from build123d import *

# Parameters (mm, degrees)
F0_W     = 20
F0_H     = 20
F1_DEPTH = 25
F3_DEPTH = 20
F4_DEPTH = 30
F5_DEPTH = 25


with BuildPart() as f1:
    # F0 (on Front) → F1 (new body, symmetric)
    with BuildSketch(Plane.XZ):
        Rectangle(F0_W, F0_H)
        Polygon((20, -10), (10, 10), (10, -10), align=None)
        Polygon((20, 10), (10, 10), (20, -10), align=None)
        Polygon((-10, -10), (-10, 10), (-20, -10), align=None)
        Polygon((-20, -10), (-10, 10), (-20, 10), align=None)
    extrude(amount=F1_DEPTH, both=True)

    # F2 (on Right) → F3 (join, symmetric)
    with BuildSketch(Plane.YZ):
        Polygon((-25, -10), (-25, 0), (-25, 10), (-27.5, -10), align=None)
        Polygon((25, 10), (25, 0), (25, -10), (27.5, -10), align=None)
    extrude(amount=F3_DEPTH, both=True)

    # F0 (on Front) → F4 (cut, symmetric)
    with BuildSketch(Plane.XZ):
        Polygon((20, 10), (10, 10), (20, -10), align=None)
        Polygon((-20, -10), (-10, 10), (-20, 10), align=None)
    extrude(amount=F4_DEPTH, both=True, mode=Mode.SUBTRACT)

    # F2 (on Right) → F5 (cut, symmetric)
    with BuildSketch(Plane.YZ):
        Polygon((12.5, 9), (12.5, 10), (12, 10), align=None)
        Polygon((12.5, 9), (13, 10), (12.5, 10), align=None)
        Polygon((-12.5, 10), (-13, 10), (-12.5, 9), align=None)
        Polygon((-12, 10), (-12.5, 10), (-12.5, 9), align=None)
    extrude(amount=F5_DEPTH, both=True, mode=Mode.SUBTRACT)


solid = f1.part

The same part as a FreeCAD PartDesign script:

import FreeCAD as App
import Part
import Sketcher
from FreeCAD import Vector
Q = App.Units.Quantity

doc = App.newDocument("Part")
params = doc.addObject("Spreadsheet::Sheet", "Params")
for row, (alias, value) in enumerate([
    ("sketch1_width", "40 mm"),
    ("sketch1_height", "20 mm"),
    ("pad1_length", "50 mm"),
    ("sketch2_height", "20 mm"),
    ("sketch2_width", "2.5 mm"),
    ("pad2_length", "40 mm"),
    ("sketch3_width", "10 mm"),
    ("sketch3_height", "20 mm"),
    ("pocket1_length", "60 mm"),
    ("sketch4_width", "1 mm"),
    ("pocket2_length", "50 mm"),
], start=1):
    params.set(f"A{row}", alias)
    params.set(f"B{row}", "=" + value)
    params.setAlias(f"B{row}", alias)

body = doc.addObject("PartDesign::Body", "Body")

# Sketch on XZ plane
sketch1 = body.newObject("Sketcher::SketchObject", "Sketch")
sketch1.AttachmentSupport = (doc.getObject("XZ_Plane"), [""])
sketch1.MapMode = "FlatFace"
sketch1.addGeometry(Part.LineSegment(Vector(20, -10, 0), Vector(20, 10, 0)), False)
sketch1.addGeometry(Part.LineSegment(Vector(20, 10, 0), Vector(-20, 10, 0)), False)
sketch1.addGeometry(Part.LineSegment(Vector(-20, 10, 0), Vector(-20, -10, 0)), False)
sketch1.addGeometry(Part.LineSegment(Vector(-20, -10, 0), Vector(20, -10, 0)), False)
sketch1.addConstraint(Sketcher.Constraint("Coincident", 0, 2, 1, 1))
sketch1.addConstraint(Sketcher.Constraint("Coincident", 1, 2, 2, 1))
sketch1.addConstraint(Sketcher.Constraint("Coincident", 2, 2, 3, 1))
sketch1.addConstraint(Sketcher.Constraint("Coincident", 3, 2, 0, 1))
sketch1.addConstraint(Sketcher.Constraint("Vertical", 0))
sketch1.addConstraint(Sketcher.Constraint("Horizontal", 1))
sketch1.addConstraint(Sketcher.Constraint("Vertical", 2))
sketch1.addConstraint(Sketcher.Constraint("Horizontal", 3))
sketch1.addConstraint(Sketcher.Constraint("Symmetric", 0, 2, 2, 2, -1, 1))
sketch1.addConstraint(Sketcher.Constraint("DistanceX", 1, 2, 1, 1, Q("40 mm")))
sketch1.addConstraint(Sketcher.Constraint("DistanceY", 0, 1, 0, 2, Q("20 mm")))
sketch1.setExpression("Constraints[9]", "Params.sketch1_width")
sketch1.setExpression("Constraints[10]", "Params.sketch1_height")
pad1 = body.newObject("PartDesign::Pad", "Pad")
pad1.Profile = sketch1
pad1.setExpression("Length", "Params.pad1_length")
pad1.Midplane = True

# Sketch on YZ plane
sketch2 = body.newObject("Sketcher::SketchObject", "Sketch001")
sketch2.AttachmentSupport = (doc.getObject("YZ_Plane"), [""])
sketch2.MapMode = "FlatFace"
sketch2.addGeometry(Part.LineSegment(Vector(-25, -10, 0), Vector(-25, 10, 0)), False)
sketch2.addGeometry(Part.LineSegment(Vector(-25, 10, 0), Vector(-27.5, -10, 0)), False)
sketch2.addGeometry(Part.LineSegment(Vector(-27.5, -10, 0), Vector(-25, -10, 0)), False)
sketch2.addGeometry(Part.LineSegment(Vector(25, 10, 0), Vector(25, -10, 0)), False)
sketch2.addGeometry(Part.LineSegment(Vector(25, -10, 0), Vector(27.5, -10, 0)), False)
sketch2.addGeometry(Part.LineSegment(Vector(27.5, -10, 0), Vector(25, 10, 0)), False)
sketch2.addConstraint(Sketcher.Constraint("Coincident", 0, 2, 1, 1))
sketch2.addConstraint(Sketcher.Constraint("Coincident", 1, 2, 2, 1))
sketch2.addConstraint(Sketcher.Constraint("Coincident", 2, 2, 0, 1))
sketch2.addConstraint(Sketcher.Constraint("Coincident", 3, 2, 4, 1))
sketch2.addConstraint(Sketcher.Constraint("Coincident", 4, 2, 5, 1))
sketch2.addConstraint(Sketcher.Constraint("Coincident", 5, 2, 3, 1))
sketch2.addConstraint(Sketcher.Constraint("Vertical", 0))
sketch2.addConstraint(Sketcher.Constraint("Horizontal", 2))
sketch2.addConstraint(Sketcher.Constraint("Vertical", 3))
sketch2.addConstraint(Sketcher.Constraint("Horizontal", 4))
sketch2.addConstraint(Sketcher.Constraint("Symmetric", 0, 2, 3, 2, -1, 1))
sketch2.addConstraint(Sketcher.Constraint("Symmetric", 1, 2, 4, 2, -2))
sketch2.addConstraint(Sketcher.Constraint("Horizontal", 0, 2, 5, 2))
sketch2.addConstraint(Sketcher.Constraint("DistanceY", 0, 1, 0, 2, Q("20 mm")))
sketch2.addConstraint(Sketcher.Constraint("DistanceX", 2, 1, 2, 2, Q("2.5 mm")))
sketch2.addConstraint(Sketcher.Constraint("DistanceX", 0, 2, -1, 1, Q("25 mm")))
sketch2.setExpression("Constraints[13]", "Params.sketch2_height")
sketch2.setExpression("Constraints[14]", "Params.sketch2_width")
pad2 = body.newObject("PartDesign::Pad", "Pad001")
pad2.Profile = sketch2
pad2.setExpression("Length", "Params.pad2_length")
pad2.Midplane = True

# Sketch on XZ plane
sketch3 = body.newObject("Sketcher::SketchObject", "Sketch002")
sketch3.AttachmentSupport = (doc.getObject("XZ_Plane"), [""])
sketch3.MapMode = "FlatFace"
sketch3.addGeometry(Part.LineSegment(Vector(20, 10, 0), Vector(10, 10, 0)), False)
sketch3.addGeometry(Part.LineSegment(Vector(10, 10, 0), Vector(20, -10, 0)), False)
sketch3.addGeometry(Part.LineSegment(Vector(20, -10, 0), Vector(20, 10, 0)), False)
sketch3.addGeometry(Part.LineSegment(Vector(-20, -10, 0), Vector(-10, 10, 0)), False)
sketch3.addGeometry(Part.LineSegment(Vector(-10, 10, 0), Vector(-20, 10, 0)), False)
sketch3.addGeometry(Part.LineSegment(Vector(-20, 10, 0), Vector(-20, -10, 0)), False)
sketch3.addConstraint(Sketcher.Constraint("Coincident", 0, 2, 1, 1))
sketch3.addConstraint(Sketcher.Constraint("Coincident", 1, 2, 2, 1))
sketch3.addConstraint(Sketcher.Constraint("Coincident", 2, 2, 0, 1))
sketch3.addConstraint(Sketcher.Constraint("Coincident", 3, 2, 4, 1))
sketch3.addConstraint(Sketcher.Constraint("Coincident", 4, 2, 5, 1))
sketch3.addConstraint(Sketcher.Constraint("Coincident", 5, 2, 3, 1))
sketch3.addConstraint(Sketcher.Constraint("Horizontal", 0))
sketch3.addConstraint(Sketcher.Constraint("Vertical", 2))
sketch3.addConstraint(Sketcher.Constraint("Horizontal", 4))
sketch3.addConstraint(Sketcher.Constraint("Vertical", 5))
sketch3.addConstraint(Sketcher.Constraint("Symmetric", 1, 2, 4, 2, -1, 1))
sketch3.addConstraint(Sketcher.Constraint("Symmetric", 0, 2, 3, 2, -2))
sketch3.addConstraint(Sketcher.Constraint("Horizontal", 1, 2, 5, 2))
sketch3.addConstraint(Sketcher.Constraint("DistanceX", 0, 2, 0, 1, Q("10 mm")))
sketch3.addConstraint(Sketcher.Constraint("DistanceY", 2, 1, 2, 2, Q("20 mm")))
sketch3.addConstraint(Sketcher.Constraint("DistanceX", -1, 1, 0, 2, Q("10 mm")))
sketch3.setExpression("Constraints[13]", "Params.sketch3_width")
sketch3.setExpression("Constraints[14]", "Params.sketch3_height")
pocket1 = body.newObject("PartDesign::Pocket", "Pocket")
pocket1.Profile = sketch3
pocket1.setExpression("Length", "Params.pocket1_length")
pocket1.Midplane = True

# Sketch on YZ plane
sketch4 = body.newObject("Sketcher::SketchObject", "Sketch003")
sketch4.AttachmentSupport = (doc.getObject("YZ_Plane"), [""])
sketch4.MapMode = "FlatFace"
sketch4.addGeometry(Part.LineSegment(Vector(12, 10, 0), Vector(12.5, 9, 0)), False)
sketch4.addGeometry(Part.LineSegment(Vector(12.5, 9, 0), Vector(13, 10, 0)), False)
sketch4.addGeometry(Part.LineSegment(Vector(13, 10, 0), Vector(12, 10, 0)), False)
sketch4.addGeometry(Part.LineSegment(Vector(-13, 10, 0), Vector(-12.5, 9, 0)), False)
sketch4.addGeometry(Part.LineSegment(Vector(-12.5, 9, 0), Vector(-12, 10, 0)), False)
sketch4.addGeometry(Part.LineSegment(Vector(-12, 10, 0), Vector(-13, 10, 0)), False)
sketch4.addConstraint(Sketcher.Constraint("Coincident", 0, 2, 1, 1))
sketch4.addConstraint(Sketcher.Constraint("Coincident", 1, 2, 2, 1))
sketch4.addConstraint(Sketcher.Constraint("Coincident", 2, 2, 0, 1))
sketch4.addConstraint(Sketcher.Constraint("Coincident", 3, 2, 4, 1))
sketch4.addConstraint(Sketcher.Constraint("Coincident", 4, 2, 5, 1))
sketch4.addConstraint(Sketcher.Constraint("Coincident", 5, 2, 3, 1))
sketch4.addConstraint(Sketcher.Constraint("Horizontal", 2))
sketch4.addConstraint(Sketcher.Constraint("Horizontal", 5))
sketch4.addConstraint(Sketcher.Constraint("Symmetric", 0, 2, 3, 2, -2))
sketch4.addConstraint(Sketcher.Constraint("Symmetric", 2, 2, 4, 2, -2))
sketch4.addConstraint(Sketcher.Constraint("Parallel", 0, 3))
sketch4.addConstraint(Sketcher.Constraint("Parallel", 1, 4))
sketch4.addConstraint(Sketcher.Constraint("DistanceX", 2, 2, 2, 1, Q("1 mm")))
sketch4.addConstraint(Sketcher.Constraint("DistanceY", -1, 1, 0, 2, Q("9 mm")))
sketch4.addConstraint(Sketcher.Constraint("DistanceX", -1, 1, 1, 2, Q("13 mm")))
sketch4.addConstraint(Sketcher.Constraint("DistanceY", -1, 1, 1, 2, Q("10 mm")))
sketch4.setExpression("Constraints[12]", "Params.sketch4_width")
pocket2 = body.newObject("PartDesign::Pocket", "Pocket001")
pocket2.Profile = sketch4
pocket2.setExpression("Length", "Params.pocket2_length")
pocket2.Midplane = True

doc.recompute()
